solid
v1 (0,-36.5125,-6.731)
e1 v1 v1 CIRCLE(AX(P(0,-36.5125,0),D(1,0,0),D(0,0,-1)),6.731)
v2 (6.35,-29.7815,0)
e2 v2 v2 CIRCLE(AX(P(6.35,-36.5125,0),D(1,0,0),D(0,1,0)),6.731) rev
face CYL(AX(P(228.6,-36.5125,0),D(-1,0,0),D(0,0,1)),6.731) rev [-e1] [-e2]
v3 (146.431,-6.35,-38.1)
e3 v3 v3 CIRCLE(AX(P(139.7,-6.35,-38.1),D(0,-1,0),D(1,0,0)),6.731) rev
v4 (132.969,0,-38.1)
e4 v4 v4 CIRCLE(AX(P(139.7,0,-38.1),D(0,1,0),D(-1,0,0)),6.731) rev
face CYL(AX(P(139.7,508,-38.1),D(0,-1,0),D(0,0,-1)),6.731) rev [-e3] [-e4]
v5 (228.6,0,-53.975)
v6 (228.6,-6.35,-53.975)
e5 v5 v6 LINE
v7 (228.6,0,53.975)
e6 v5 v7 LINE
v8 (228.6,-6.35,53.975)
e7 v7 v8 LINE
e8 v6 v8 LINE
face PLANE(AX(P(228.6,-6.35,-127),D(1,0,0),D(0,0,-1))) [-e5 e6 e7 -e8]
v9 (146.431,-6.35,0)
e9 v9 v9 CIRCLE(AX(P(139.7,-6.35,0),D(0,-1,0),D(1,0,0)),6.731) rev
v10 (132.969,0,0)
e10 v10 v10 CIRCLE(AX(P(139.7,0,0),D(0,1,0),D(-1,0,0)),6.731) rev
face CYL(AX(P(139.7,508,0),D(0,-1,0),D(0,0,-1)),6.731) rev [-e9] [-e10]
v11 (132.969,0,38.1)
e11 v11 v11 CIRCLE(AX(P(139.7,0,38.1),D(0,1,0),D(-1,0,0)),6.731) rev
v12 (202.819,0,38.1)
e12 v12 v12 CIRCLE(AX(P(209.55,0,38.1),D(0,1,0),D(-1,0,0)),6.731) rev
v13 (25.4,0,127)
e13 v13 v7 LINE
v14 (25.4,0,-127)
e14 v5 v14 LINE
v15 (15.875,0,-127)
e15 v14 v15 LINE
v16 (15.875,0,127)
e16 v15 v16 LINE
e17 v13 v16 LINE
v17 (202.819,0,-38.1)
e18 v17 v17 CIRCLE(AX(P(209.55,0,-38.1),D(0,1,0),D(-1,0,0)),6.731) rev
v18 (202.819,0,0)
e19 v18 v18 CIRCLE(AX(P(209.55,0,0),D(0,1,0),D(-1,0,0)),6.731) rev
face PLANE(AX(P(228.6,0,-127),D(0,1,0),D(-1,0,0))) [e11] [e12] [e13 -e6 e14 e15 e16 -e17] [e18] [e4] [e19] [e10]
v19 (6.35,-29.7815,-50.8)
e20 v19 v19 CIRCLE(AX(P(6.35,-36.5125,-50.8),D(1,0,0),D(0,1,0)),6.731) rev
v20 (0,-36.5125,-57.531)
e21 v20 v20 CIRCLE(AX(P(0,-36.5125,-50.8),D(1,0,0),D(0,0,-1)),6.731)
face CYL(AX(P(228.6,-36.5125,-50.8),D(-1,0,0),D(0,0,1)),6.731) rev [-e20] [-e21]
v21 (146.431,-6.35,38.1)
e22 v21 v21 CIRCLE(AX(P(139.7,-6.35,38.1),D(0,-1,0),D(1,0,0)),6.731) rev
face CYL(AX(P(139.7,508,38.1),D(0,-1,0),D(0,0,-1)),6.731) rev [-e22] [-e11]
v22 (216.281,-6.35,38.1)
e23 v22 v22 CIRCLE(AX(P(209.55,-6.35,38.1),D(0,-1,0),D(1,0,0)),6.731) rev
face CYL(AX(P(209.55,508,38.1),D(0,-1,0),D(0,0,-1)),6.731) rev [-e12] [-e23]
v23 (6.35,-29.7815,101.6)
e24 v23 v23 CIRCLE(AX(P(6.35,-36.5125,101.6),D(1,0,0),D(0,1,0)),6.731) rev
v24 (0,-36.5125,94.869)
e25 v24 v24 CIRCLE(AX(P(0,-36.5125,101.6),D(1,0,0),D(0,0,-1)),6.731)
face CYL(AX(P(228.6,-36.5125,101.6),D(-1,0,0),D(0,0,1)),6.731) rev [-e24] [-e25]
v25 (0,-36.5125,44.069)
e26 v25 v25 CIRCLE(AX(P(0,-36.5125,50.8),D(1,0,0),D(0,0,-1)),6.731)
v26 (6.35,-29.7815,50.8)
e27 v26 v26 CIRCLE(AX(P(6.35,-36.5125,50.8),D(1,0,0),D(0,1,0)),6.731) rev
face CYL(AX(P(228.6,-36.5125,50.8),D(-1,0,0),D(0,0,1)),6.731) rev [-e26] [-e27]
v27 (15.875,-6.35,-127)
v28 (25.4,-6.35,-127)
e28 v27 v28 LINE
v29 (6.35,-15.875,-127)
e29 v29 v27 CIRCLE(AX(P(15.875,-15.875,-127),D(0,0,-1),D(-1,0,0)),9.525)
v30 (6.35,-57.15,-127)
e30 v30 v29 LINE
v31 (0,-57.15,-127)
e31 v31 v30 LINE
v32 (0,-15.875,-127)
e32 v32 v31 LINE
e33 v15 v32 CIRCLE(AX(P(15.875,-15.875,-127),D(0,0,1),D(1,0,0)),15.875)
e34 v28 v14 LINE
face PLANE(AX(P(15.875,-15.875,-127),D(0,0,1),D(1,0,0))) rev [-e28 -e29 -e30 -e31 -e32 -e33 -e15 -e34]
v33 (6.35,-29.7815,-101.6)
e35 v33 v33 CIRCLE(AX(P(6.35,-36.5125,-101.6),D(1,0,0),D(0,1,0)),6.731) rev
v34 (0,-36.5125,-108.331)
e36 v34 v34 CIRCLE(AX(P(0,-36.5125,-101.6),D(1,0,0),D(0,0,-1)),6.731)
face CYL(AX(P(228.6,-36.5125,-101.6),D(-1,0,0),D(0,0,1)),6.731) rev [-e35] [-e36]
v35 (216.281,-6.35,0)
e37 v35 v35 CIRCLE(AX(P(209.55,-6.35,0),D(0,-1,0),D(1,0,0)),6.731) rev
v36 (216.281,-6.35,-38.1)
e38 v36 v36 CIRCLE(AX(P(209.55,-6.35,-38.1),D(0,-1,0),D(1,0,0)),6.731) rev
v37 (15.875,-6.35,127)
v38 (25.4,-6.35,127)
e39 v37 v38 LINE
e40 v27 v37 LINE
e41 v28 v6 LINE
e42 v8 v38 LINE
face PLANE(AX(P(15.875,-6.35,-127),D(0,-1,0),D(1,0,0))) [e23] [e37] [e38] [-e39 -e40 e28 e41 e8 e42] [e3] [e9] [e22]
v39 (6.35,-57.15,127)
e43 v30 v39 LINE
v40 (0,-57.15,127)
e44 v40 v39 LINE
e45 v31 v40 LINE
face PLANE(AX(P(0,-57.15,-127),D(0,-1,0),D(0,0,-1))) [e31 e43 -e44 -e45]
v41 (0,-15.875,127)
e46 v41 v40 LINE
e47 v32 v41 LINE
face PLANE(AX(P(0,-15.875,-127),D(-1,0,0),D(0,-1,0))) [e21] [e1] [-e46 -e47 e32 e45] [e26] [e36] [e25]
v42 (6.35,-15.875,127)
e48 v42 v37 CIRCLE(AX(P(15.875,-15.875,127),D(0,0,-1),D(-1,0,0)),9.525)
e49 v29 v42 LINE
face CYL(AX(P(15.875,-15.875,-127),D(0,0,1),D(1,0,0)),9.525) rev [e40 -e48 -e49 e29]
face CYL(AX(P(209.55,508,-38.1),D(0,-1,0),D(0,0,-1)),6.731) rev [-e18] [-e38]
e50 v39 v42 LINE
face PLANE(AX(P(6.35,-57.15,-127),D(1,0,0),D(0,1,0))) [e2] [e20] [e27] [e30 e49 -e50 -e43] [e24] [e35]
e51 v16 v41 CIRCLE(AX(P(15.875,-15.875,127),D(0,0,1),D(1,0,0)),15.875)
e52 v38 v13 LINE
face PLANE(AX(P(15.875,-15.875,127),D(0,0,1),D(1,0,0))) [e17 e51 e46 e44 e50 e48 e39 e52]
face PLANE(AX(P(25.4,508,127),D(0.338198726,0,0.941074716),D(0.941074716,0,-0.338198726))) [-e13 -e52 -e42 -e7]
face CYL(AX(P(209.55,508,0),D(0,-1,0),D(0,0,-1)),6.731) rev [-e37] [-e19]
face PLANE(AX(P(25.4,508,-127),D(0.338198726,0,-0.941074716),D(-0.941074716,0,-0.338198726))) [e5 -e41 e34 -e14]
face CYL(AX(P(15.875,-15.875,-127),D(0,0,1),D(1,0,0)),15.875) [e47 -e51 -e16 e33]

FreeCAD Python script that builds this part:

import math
import FreeCAD as App
import Part
import Sketcher
Q = App.Units.Quantity


def add_polygon(sketch, points):
    """Adds a closed chain of lines whose ends are joined by coincident constraints."""
    first, n = sketch.GeometryCount, len(points)
    for a, b in zip(points, points[1:] + points[:1]):
        sketch.addGeometry(Part.LineSegment(App.Vector(*a, 0), App.Vector(*b, 0)), False)
    for i in range(n):
        sketch.addConstraint(Sketcher.Constraint("Coincident", first + i, 2, first + (i + 1) % n, 1))

doc = App.newDocument("Part")
body = doc.addObject("PartDesign::Body", "Body")

# Sketch on XY plane
sketch1 = body.newObject("Sketcher::SketchObject", "Sketch")
sketch1.AttachmentSupport = (doc.getObject("XY_Plane"), [""])
sketch1.MapMode = "FlatFace"
sketch1.addGeometry([
    Part.LineSegment(App.Vector(229, 0, 0), App.Vector(16, 0, 0)),  # 0
    Part.ArcOfCircle(Part.Circle(App.Vector(16, -16, 0), App.Vector(0, 0, 1), 16), math.radians(90), math.radians(180)),  # 1
    Part.LineSegment(App.Vector(0, -16, 0), App.Vector(0, -57, 0)),  # 2
    Part.LineSegment(App.Vector(0, -57, 0), App.Vector(6, -57, 0)),  # 3
    Part.LineSegment(App.Vector(6, -57, 0), App.Vector(6, -16, 0)),  # 4
    Part.ArcOfCircle(Part.Circle(App.Vector(16, -16, 0), App.Vector(0, 0, 1), 10), math.radians(90), math.radians(180)),  # 5
    Part.LineSegment(App.Vector(16, -6, 0), App.Vector(229, -6, 0)),  # 6
    Part.LineSegment(App.Vector(229, -6, 0), App.Vector(229, 0, 0)),  # 7
], False)
sketch1.addConstraint([
    Sketcher.Constraint("Tangent", 0, 2, 1, 1),
    Sketcher.Constraint("Tangent", 1, 2, 2, 1),
    Sketcher.Constraint("Coincident", 2, 2, 3, 1),
    Sketcher.Constraint("Coincident", 3, 2, 4, 1),
    Sketcher.Constraint("Tangent", 4, 2, 5, 2),
    Sketcher.Constraint("Tangent", 5, 1, 6, 1),
    Sketcher.Constraint("Coincident", 6, 2, 7, 1),
    Sketcher.Constraint("Coincident", 7, 2, 0, 1),
    Sketcher.Constraint("Horizontal", 0),
    Sketcher.Constraint("Vertical", 2),
    Sketcher.Constraint("Horizontal", 3),
    Sketcher.Constraint("Vertical", 4),
    Sketcher.Constraint("Horizontal", 6),
    Sketcher.Constraint("Vertical", 7),
    Sketcher.Constraint("Coincident", 5, 3, 1, 3),
    Sketcher.Constraint("PointOnObject", 0, 2, -1),
    Sketcher.Constraint("PointOnObject", 1, 2, -2),
    Sketcher.Constraint("DistanceX", -1, 1, 6, 2, Q("9 in")),
    Sketcher.Constraint("Radius", 1, Q("0.625 in")),
    Sketcher.Constraint("Radius", 5, Q("0.375 in")),
    Sketcher.Constraint("DistanceY", 2, 2, 2, 1, Q("1.625 in")),
])
pad1 = body.newObject("PartDesign::Pad", "Pad")
pad1.Profile = sketch1
pad1.Length = Q("10 in")
pad1.Midplane = True

# Sketch on XZ plane
sketch2 = body.newObject("Sketcher::SketchObject", "Sketch001")
sketch2.AttachmentSupport = (doc.getObject("XZ_Plane"), [""])
sketch2.MapMode = "FlatFace"
sketch2.addGeometry(Part.Circle(App.Vector(210, -38, 0), App.Vector(0, 0, 1), 7), False)  # 0
sketch2.addGeometry(Part.Circle(App.Vector(140, -38, 0), App.Vector(0, 0, 1), 7), False)  # 1
sketch2.addGeometry(Part.Circle(App.Vector(210, 0, 0), App.Vector(0, 0, 1), 7), False)  # 2
sketch2.addGeometry(Part.Circle(App.Vector(140, 0, 0), App.Vector(0, 0, 1), 7), False)  # 3
sketch2.addGeometry(Part.Circle(App.Vector(140, 38, 0), App.Vector(0, 0, 1), 7), False)  # 4
sketch2.addGeometry(Part.Circle(App.Vector(210, 38, 0), App.Vector(0, 0, 1), 7), False)  # 5
add_polygon(sketch2, [(25, -127), (229, -54), (229, -127)])  # lines 6-8
add_polygon(sketch2, [(229, 127), (229, 54), (25, 127)])  # lines 9-11
sketch2.addConstraint([
    Sketcher.Constraint("Vertical", 7),
    Sketcher.Constraint("Horizontal", 8),
    Sketcher.Constraint("Vertical", 9),
    Sketcher.Constraint("Horizontal", 11),
    Sketcher.Constraint("Equal", 0, 1),
    Sketcher.Constraint("Equal", 1, 2),
    Sketcher.Constraint("Equal", 2, 3),
    Sketcher.Constraint("Equal", 3, 4),
    Sketcher.Constraint("Equal", 4, 5),
    Sketcher.Constraint("Symmetric", 1, 3, 4, 3, -1),
    Sketcher.Constraint("Symmetric", 0, 3, 5, 3, -1),
    Sketcher.Constraint("Symmetric", 6, 2, 9, 2, -1),
    Sketcher.Constraint("Symmetric", 8, 2, 10, 2, -1),
    Sketcher.Constraint("PointOnObject", 2, 3, -1),
    Sketcher.Constraint("PointOnObject", 3, 3, -1),
    Sketcher.Constraint("Horizontal", 0, 3, 1, 3),
    Sketcher.Constraint("Vertical", 0, 3, 2, 3),
    Sketcher.Constraint("Vertical", 1, 3, 3, 3),
    Sketcher.Constraint("Diameter", 0, Q("0.53 in")),
    Sketcher.Constraint("DistanceX", 8, 2, 8, 1, Q("8 in")),
    Sketcher.Constraint("DistanceX", -1, 1, 6, 2, Q("9 in")),
    Sketcher.Constraint("DistanceY", 7, 2, -1, 1, Q("5 in")),
    Sketcher.Constraint("DistanceY", 1, 3, 4, 3, Q("3 in")),
    Sketcher.Constraint("DistanceX", -1, 1, 1, 3, Q("5.5 in")),
    Sketcher.Constraint("DistanceY", 7, 2, 7, 1, Q("2.875 in")),
    Sketcher.Constraint("DistanceX", -1, 1, 0, 3, Q("8.25 in")),
])
pocket1 = body.newObject("PartDesign::Pocket", "Pocket")
pocket1.Profile = sketch2
pocket1.Type = "ThroughAll"
pocket1.Midplane = True

# Sketch on YZ plane
sketch3 = body.newObject("Sketcher::SketchObject", "Sketch002")
sketch3.AttachmentSupport = (doc.getObject("YZ_Plane"), [""])
sketch3.MapMode = "FlatFace"
sketch3.addGeometry([
    Part.Circle(App.Vector(-37, 0, 0), App.Vector(0, 0, 1), 7),  # 0
    Part.Circle(App.Vector(-37, -102, 0), App.Vector(0, 0, 1), 7),  # 1
    Part.Circle(App.Vector(-151, 0, 0), App.Vector(0, 0, 1), 7),  # 2
    Part.Circle(App.Vector(-151, -102, 0), App.Vector(0, 0, 1), 7),  # 3
    Part.Circle(App.Vector(-37, 102, 0), App.Vector(0, 0, 1), 7),  # 4
    Part.Circle(App.Vector(-151, 102, 0), App.Vector(0, 0, 1), 7),  # 5
    Part.Circle(App.Vector(-37, 51, 0), App.Vector(0, 0, 1), 7),  # 6
    Part.Circle(App.Vector(-37, -51, 0), App.Vector(0, 0, 1), 7),  # 7
    Part.Circle(App.Vector(-151, -51, 0), App.Vector(0, 0, 1), 7),  # 8
    Part.Circle(App.Vector(-151, 51, 0), App.Vector(0, 0, 1), 7),  # 9
], False)
sketch3.addConstraint([
    Sketcher.Constraint("Equal", 0, 1),
    Sketcher.Constraint("Equal", 1, 2),
    Sketcher.Constraint("Equal", 2, 3),
    Sketcher.Constraint("Equal", 3, 4),
    Sketcher.Constraint("Equal", 4, 5),
    Sketcher.Constraint("Equal", 5, 6),
    Sketcher.Constraint("Equal", 6, 7),
    Sketcher.Constraint("Equal", 7, 8),
    Sketcher.Constraint("Equal", 8, 9),
    Sketcher.Constraint("Symmetric", 1, 3, 4, 3, -1),
    Sketcher.Constraint("Symmetric", 3, 3, 5, 3, -1),
    Sketcher.Constraint("Symmetric", 6, 3, 7, 3, -1),
    Sketcher.Constraint("Symmetric", 8, 3, 9, 3, -1),
    Sketcher.Constraint("PointOnObject", 0, 3, -1),
    Sketcher.Constraint("PointOnObject", 2, 3, -1),
    Sketcher.Constraint("Horizontal", 1, 3, 3, 3),
    Sketcher.Constraint("Horizontal", 7, 3, 8, 3),
    Sketcher.Constraint("Vertical", 0, 3, 1, 3),
    Sketcher.Constraint("Vertical", 2, 3, 3, 3),
    Sketcher.Constraint("Vertical", 4, 3, 6, 3),
    Sketcher.Constraint("Vertical", 5, 3, 8, 3),
    Sketcher.Constraint("Diameter", 0, Q("0.53 in")),
    Sketcher.Constraint("DistanceY", 1, 3, -1, 1, Q("4 in")),
    Sketcher.Constraint("DistanceY", -1, 1, 6, 3, Q("2 in")),
    Sketcher.Constraint("DistanceX", 2, 3, 0, 3, Q("4.5 in")),
    Sketcher.Constraint("DistanceX", 0, 3, -1, 1, Q("1.4375 in")),
])
pocket2 = body.newObject("PartDesign::Pocket", "Pocket001")
pocket2.Profile = sketch3
pocket2.Type = "ThroughAll"
pocket2.Reversed = True

doc.recompute()
